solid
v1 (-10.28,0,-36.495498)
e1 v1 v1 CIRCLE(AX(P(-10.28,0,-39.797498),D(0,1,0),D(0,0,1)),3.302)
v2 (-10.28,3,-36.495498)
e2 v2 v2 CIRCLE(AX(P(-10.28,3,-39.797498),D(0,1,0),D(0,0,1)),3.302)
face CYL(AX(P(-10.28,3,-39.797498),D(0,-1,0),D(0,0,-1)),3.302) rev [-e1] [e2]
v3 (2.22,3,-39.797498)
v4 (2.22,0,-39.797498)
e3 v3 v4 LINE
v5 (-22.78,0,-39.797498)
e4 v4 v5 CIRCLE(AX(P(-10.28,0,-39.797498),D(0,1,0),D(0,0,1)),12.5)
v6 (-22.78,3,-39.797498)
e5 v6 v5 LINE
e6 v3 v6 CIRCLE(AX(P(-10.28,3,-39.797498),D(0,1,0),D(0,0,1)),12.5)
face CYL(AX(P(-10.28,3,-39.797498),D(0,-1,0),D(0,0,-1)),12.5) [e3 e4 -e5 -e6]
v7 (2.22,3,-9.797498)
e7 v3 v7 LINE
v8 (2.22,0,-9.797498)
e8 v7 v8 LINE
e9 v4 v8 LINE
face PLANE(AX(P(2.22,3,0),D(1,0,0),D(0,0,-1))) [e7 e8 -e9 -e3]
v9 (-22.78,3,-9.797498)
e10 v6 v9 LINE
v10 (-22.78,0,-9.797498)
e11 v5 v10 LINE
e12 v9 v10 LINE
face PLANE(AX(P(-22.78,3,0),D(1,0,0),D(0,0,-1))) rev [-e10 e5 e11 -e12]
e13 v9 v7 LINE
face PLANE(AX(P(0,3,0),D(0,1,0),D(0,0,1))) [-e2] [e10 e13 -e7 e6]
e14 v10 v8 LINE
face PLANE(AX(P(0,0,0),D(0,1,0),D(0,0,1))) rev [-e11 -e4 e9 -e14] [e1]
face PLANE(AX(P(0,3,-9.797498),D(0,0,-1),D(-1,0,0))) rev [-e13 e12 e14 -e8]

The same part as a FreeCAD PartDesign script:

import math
import FreeCAD as App
import Part
import Sketcher
from FreeCAD import Vector

doc = App.newDocument("Part")
body = doc.addObject("PartDesign::Body", "Body")

sketch1 = doc.addObject("Sketcher::SketchObject", "Sketch")
body.addObject(sketch1)
sketch1.AttachmentSupport = (doc.XZ_Plane, [""])
sketch1.MapMode = "FlatFace"
sketch1.addGeometry(Part.LineSegment(Vector(-22.8, -39.8, 0), Vector(-22.8, -9.8, 0)), False)
sketch1.addGeometry(Part.LineSegment(Vector(-22.8, -9.8, 0), Vector(2.2, -9.8, 0)), False)
sketch1.addGeometry(Part.LineSegment(Vector(2.2, -9.8, 0), Vector(2.2, -39.8, 0)), False)
sketch1.addGeometry(Part.ArcOfCircle(Part.Circle(Vector(-10.3, -39.8, 0), Vector(0, 0, 1), 12.5), math.radians(180), math.radians(360)), False)
sketch1.addGeometry(Part.Circle(Vector(-10.3, -39.8, 0), Vector(0, 0, 1), 3.3), False)
sketch1.addConstraint(Sketcher.Constraint("Coincident", 0, 2, 1, 1))
sketch1.addConstraint(Sketcher.Constraint("Coincident", 1, 2, 2, 1))
sketch1.addConstraint(Sketcher.Constraint("Tangent", 2, 2, 3, 2))
sketch1.addConstraint(Sketcher.Constraint("Tangent", 3, 1, 0, 1))
sketch1.addConstraint(Sketcher.Constraint("Vertical", 0))
sketch1.addConstraint(Sketcher.Constraint("Horizontal", 1))
sketch1.addConstraint(Sketcher.Constraint("Vertical", 2))
sketch1.addConstraint(Sketcher.Constraint("Coincident", 4, 3, 3, 3))
sketch1.addConstraint(Sketcher.Constraint("Radius", 3, 12.5))
sketch1.addConstraint(Sketcher.Constraint("DistanceY", 0, 1, 0, 2, 30.0))
sketch1.addConstraint(Sketcher.Constraint("Diameter", 4, 6.604))
sketch1.addConstraint(Sketcher.Constraint("DistanceX", 3, 3, -1, 1, 10.28))
sketch1.addConstraint(Sketcher.Constraint("DistanceY", 3, 3, -1, 1, 39.797498))
pad1 = doc.addObject("PartDesign::Pad", "Pad")
body.addObject(pad1)
pad1.Profile = sketch1
pad1.Length = 3
pad1.Reversed = True

doc.recompute()
